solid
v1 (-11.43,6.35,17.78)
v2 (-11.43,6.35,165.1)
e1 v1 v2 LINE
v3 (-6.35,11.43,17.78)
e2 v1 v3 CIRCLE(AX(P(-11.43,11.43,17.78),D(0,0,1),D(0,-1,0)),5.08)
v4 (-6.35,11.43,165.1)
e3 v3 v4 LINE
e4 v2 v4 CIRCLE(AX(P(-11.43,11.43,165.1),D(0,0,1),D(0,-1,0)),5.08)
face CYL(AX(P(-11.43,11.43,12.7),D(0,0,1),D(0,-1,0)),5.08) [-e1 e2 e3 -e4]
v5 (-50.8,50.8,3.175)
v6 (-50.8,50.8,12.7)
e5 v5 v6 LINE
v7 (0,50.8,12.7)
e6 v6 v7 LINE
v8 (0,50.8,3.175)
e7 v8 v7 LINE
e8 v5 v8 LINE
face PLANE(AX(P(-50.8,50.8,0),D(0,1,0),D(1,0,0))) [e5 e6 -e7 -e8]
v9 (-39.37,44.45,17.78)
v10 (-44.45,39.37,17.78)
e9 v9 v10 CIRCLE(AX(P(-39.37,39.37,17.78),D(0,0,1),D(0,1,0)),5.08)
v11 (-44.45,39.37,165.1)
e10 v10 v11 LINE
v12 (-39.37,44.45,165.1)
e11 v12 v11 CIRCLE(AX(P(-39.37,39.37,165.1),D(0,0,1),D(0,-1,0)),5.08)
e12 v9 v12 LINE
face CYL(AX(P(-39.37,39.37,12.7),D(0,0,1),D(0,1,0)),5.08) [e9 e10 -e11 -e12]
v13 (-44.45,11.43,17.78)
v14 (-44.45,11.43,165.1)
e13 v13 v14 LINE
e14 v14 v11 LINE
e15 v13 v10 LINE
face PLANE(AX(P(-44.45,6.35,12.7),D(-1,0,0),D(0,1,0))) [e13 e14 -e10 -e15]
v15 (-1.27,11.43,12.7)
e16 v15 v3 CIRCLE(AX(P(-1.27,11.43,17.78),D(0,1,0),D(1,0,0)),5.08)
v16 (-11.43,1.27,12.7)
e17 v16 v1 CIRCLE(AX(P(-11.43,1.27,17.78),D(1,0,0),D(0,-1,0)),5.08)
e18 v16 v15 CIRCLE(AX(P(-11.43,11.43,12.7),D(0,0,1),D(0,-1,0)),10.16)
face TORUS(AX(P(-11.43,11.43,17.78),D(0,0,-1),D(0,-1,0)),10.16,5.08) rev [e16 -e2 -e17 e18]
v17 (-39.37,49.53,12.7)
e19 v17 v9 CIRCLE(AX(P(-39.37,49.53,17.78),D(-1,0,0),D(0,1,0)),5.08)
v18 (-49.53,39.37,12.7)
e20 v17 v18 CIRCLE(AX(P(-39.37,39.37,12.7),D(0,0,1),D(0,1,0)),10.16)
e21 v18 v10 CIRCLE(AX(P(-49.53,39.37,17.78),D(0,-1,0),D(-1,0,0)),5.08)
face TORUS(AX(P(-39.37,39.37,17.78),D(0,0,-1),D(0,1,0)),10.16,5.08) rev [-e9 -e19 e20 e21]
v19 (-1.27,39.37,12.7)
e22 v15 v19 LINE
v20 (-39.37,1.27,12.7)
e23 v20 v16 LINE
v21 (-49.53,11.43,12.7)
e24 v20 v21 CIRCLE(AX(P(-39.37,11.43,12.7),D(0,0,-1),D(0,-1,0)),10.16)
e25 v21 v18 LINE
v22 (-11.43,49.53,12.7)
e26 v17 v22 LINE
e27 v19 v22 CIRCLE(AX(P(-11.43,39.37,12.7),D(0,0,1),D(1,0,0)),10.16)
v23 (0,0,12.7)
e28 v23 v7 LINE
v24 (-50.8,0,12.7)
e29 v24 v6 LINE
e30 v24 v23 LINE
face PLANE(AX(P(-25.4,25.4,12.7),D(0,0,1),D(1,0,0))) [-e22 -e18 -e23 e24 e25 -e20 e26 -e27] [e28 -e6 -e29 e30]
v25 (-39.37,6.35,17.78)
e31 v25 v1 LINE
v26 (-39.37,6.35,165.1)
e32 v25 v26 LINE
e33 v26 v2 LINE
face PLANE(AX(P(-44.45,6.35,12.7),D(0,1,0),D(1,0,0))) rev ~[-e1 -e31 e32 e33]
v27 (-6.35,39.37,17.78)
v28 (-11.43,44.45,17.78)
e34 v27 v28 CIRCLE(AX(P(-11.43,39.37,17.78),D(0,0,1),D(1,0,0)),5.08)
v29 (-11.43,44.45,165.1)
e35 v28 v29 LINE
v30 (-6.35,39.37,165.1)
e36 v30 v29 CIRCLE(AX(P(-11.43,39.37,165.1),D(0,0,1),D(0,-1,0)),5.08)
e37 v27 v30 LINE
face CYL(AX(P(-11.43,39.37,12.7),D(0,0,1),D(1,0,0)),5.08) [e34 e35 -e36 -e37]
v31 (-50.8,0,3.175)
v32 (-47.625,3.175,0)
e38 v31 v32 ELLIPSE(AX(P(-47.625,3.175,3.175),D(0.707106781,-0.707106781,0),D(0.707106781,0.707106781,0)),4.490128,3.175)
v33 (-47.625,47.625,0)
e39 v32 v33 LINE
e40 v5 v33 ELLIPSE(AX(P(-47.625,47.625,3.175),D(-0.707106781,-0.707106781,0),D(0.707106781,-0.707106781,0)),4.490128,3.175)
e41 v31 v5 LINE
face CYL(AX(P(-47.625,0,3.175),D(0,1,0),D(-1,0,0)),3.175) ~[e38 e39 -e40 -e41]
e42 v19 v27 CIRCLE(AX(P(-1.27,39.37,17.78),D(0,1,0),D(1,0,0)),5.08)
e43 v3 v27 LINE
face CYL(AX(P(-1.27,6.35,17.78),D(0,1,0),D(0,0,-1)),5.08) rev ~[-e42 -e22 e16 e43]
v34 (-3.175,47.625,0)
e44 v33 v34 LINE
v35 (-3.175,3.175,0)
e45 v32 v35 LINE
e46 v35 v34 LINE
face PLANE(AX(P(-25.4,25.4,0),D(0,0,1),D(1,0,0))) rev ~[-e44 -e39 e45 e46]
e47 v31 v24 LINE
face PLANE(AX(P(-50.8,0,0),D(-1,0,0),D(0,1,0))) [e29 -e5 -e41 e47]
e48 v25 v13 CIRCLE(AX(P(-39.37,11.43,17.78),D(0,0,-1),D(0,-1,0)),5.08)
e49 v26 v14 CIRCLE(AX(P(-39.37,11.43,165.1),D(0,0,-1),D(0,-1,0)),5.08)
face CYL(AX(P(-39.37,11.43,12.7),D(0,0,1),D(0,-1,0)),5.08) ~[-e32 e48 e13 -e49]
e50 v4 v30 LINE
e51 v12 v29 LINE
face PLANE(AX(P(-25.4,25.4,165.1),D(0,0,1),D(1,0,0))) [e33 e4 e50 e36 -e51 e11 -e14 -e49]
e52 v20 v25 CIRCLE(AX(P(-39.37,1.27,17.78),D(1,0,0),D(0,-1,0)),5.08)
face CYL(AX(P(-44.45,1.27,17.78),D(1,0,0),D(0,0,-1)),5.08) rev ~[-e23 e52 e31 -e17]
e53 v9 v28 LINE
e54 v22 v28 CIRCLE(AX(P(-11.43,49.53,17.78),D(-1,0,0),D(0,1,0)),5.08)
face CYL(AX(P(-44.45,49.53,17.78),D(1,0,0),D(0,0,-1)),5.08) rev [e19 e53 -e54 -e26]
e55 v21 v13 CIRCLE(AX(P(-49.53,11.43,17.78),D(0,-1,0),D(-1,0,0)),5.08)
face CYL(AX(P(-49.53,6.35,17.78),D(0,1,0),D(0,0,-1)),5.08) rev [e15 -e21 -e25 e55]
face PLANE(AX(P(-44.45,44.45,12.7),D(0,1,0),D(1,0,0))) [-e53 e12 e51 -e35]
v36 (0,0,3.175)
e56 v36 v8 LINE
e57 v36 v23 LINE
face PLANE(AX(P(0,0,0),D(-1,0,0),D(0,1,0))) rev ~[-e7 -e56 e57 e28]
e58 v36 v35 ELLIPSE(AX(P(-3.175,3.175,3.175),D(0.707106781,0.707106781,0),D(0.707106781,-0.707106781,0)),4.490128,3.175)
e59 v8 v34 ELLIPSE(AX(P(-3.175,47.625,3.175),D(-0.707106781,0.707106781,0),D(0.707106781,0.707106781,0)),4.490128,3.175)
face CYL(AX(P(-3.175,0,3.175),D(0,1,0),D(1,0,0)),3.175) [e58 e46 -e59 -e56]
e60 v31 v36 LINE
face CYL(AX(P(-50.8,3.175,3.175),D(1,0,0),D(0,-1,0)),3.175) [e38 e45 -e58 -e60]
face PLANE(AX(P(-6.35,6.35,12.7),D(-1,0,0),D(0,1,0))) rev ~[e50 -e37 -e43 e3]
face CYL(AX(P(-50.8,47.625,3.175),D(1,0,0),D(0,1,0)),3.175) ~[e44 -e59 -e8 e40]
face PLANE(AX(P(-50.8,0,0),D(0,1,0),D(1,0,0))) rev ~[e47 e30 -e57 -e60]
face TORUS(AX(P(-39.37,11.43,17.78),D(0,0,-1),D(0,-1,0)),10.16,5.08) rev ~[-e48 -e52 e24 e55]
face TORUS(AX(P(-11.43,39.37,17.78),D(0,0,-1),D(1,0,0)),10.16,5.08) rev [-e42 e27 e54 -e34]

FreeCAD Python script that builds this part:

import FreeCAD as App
import Part
import Sketcher
from FreeCAD import Vector
Q = App.Units.Quantity


def edges_at(feature, points):
    """Names of the edges that pass closest to the given points."""
    edges = feature.Shape.Edges
    near = lambda p: min(range(len(edges)), key=lambda i: edges[i].distToShape(Part.Vertex(*p))[0])
    return sorted({f"Edge{near(p) + 1}" for p in points})

doc = App.newDocument("Part")
params = doc.addObject("Spreadsheet::Sheet", "Params")
for row, (alias, value) in enumerate([
    ("sketch1_width", "2 in"),
    ("pad1_length", "0.5 in"),
    ("sketch2_width", "1.5 in"),
    ("pad2_length", "6 in"),
    ("fillet_radius", "0.2 in"),
    ("fillet2_radius", "0.125 in"),
], start=1):
    params.set(f"A{row}", alias)
    params.set(f"B{row}", "=" + value)
    params.setAlias(f"B{row}", alias)

body = doc.addObject("PartDesign::Body", "Body")

sketch1 = body.newObject("Sketcher::SketchObject", "Sketch")
sketch1.AttachmentSupport = (doc.getObject("XY_Plane"), [""])
sketch1.MapMode = "FlatFace"
sketch1.addGeometry([
    Part.LineSegment(Vector(-50.8, 50.8, 0), Vector(-50.8, 0, 0)),
    Part.LineSegment(Vector(-50.8, 0, 0), Vector(0, 0, 0)),
    Part.LineSegment(Vector(0, 0, 0), Vector(0, 50.8, 0)),
    Part.LineSegment(Vector(0, 50.8, 0), Vector(-50.8, 50.8, 0)),
], False)
sketch1.addConstraint([
    Sketcher.Constraint("Coincident", 0, 2, 1, 1),
    Sketcher.Constraint("Coincident", 1, 2, 2, 1),
    Sketcher.Constraint("Coincident", 2, 2, 3, 1),
    Sketcher.Constraint("Coincident", 3, 2, 0, 1),
    Sketcher.Constraint("Vertical", 0),
    Sketcher.Constraint("Horizontal", 1),
    Sketcher.Constraint("Vertical", 2),
    Sketcher.Constraint("Horizontal", 3),
    Sketcher.Constraint("Coincident", 1, 2, -1, 1),
    Sketcher.Constraint("Equal", 3, 0),
    Sketcher.Constraint("DistanceX", 1, 1, 1, 2, Q("2 in")),
])
sketch1.setExpression("Constraints[10]", "Params.sketch1_width")
pad1 = body.newObject("PartDesign::Pad", "Pad")
pad1.Profile = sketch1
pad1.setExpression("Length", "Params.pad1_length")

sketch2 = body.newObject("Sketcher::SketchObject", "Sketch001")
sketch2.AttachmentSupport = (doc.getObject("XY_Plane"), [""])
sketch2.MapMode = "FlatFace"
sketch2.AttachmentOffset = App.Placement(Vector(0, 0, 0.5 * 25.4), App.Rotation())
sketch2.addGeometry([
    Part.LineSegment(Vector(-44.45, 44.45, 0), Vector(-44.45, 6.35, 0)),
    Part.LineSegment(Vector(-44.45, 6.35, 0), Vector(-6.35, 6.35, 0)),
    Part.LineSegment(Vector(-6.35, 6.35, 0), Vector(-6.35, 44.45, 0)),
    Part.LineSegment(Vector(-6.35, 44.45, 0), Vector(-44.45, 44.45, 0)),
], False)
sketch2.addConstraint([
    Sketcher.Constraint("Coincident", 0, 2, 1, 1),
    Sketcher.Constraint("Coincident", 1, 2, 2, 1),
    Sketcher.Constraint("Coincident", 2, 2, 3, 1),
    Sketcher.Constraint("Coincident", 3, 2, 0, 1),
    Sketcher.Constraint("Vertical", 0),
    Sketcher.Constraint("Horizontal", 1),
    Sketcher.Constraint("Vertical", 2),
    Sketcher.Constraint("Horizontal", 3),
    Sketcher.Constraint("Equal", 3, 0),
    Sketcher.Constraint("DistanceX", 1, 1, 1, 2, Q("1.5 in")),
    Sketcher.Constraint("DistanceX", 0, 2, -1, 1, Q("1.75 in")),
    Sketcher.Constraint("DistanceY", -1, 1, 0, 2, Q("0.25 in")),
])
sketch2.setExpression("Constraints[9]", "Params.sketch2_width")
pad2 = body.newObject("PartDesign::Pad", "Pad001")
pad2.Profile = sketch2
pad2.setExpression("Length", "Params.pad2_length")
doc.recompute()

fillet = body.newObject("PartDesign::Fillet", "Fillet")
fillet.Base = (pad2, edges_at(pad2, [
    (-25.4, 6.35, 12.7),
    (-6.35, 25.4, 12.7),
    (-25.4, 44.45, 12.7),
    (-44.45, 25.4, 12.7),
    (-44.45, 44.45, 88.9),
    (-44.45, 6.35, 88.9),
    (-6.35, 6.35, 88.9),
    (-6.35, 44.45, 88.9),
]))
fillet.setExpression("Radius", "Params.fillet_radius")
doc.recompute()

fillet2 = body.newObject("PartDesign::Fillet", "Fillet001")
fillet2.Base = (fillet, edges_at(fillet, [
    (-25.4, 0, 0),
    (0, 25.4, 0),
    (-25.4, 50.8, 0),
    (-50.8, 25.4, 0),
]))
fillet2.setExpression("Radius", "Params.fillet2_radius")

doc.recompute()
